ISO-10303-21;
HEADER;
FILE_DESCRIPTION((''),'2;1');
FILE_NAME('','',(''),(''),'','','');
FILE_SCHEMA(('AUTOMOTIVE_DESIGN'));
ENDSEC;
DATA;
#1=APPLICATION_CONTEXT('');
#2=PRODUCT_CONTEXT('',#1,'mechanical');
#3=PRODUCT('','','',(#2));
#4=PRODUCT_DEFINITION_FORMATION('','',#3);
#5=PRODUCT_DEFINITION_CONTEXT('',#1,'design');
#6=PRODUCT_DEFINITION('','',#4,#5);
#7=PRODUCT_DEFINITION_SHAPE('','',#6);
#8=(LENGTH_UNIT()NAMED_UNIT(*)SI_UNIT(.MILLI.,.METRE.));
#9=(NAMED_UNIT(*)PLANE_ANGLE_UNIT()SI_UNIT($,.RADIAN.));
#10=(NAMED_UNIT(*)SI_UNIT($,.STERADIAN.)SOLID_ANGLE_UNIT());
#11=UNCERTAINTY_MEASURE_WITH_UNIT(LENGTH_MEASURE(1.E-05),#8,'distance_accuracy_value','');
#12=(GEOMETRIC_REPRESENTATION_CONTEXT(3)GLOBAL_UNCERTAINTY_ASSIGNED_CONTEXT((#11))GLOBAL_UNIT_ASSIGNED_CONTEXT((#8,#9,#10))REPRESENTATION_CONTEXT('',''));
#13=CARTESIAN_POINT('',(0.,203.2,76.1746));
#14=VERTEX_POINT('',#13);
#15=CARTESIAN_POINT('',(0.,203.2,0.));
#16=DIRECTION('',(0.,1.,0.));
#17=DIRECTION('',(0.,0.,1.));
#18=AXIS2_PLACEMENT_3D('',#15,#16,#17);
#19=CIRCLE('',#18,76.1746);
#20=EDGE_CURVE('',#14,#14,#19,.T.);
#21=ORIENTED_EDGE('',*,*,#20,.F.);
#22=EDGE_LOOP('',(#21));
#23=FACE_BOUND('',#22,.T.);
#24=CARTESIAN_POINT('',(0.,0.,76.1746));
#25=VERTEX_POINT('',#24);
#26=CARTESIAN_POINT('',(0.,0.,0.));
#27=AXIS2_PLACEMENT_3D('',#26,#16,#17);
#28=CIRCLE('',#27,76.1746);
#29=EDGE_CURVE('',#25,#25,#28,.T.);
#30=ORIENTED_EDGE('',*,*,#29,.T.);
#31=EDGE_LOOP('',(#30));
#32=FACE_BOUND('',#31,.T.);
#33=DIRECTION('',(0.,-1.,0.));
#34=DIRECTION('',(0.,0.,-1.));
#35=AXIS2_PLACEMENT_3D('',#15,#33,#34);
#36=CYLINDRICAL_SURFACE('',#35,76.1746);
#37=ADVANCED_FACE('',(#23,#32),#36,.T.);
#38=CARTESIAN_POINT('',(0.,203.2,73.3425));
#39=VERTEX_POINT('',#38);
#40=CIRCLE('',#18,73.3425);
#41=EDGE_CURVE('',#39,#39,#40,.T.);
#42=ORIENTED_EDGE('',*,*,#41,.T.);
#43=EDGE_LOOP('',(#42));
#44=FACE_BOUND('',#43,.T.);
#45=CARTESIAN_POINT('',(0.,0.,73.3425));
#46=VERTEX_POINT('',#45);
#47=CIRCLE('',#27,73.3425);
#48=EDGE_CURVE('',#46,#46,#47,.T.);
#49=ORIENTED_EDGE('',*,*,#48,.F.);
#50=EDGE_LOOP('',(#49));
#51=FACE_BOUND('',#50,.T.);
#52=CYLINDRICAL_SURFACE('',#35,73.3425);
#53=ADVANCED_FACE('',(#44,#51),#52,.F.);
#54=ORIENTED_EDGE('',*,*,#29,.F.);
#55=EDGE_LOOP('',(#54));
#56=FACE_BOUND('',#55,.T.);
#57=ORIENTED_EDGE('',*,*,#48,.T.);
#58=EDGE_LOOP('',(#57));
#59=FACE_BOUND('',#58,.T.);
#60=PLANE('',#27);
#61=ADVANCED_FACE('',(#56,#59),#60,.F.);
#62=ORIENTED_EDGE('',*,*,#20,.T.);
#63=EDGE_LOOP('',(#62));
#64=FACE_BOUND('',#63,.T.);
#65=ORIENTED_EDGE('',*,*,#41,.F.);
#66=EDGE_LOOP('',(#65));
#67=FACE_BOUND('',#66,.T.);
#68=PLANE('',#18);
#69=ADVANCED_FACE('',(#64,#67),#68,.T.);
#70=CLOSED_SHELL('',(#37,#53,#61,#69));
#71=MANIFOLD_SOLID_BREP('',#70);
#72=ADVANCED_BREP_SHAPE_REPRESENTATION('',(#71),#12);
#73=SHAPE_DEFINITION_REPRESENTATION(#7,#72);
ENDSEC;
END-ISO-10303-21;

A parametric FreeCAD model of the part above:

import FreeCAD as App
import Part
import Sketcher
Q = App.Units.Quantity

doc = App.newDocument("Part")
body = doc.addObject("PartDesign::Body", "Body")

sketch1 = doc.addObject("Sketcher::SketchObject", "Sketch")
body.addObject(sketch1)
sketch1.AttachmentSupport = (doc.XZ_Plane, [""])
sketch1.MapMode = "FlatFace"
sketch1.addGeometry([
    Part.Circle(App.Vector(0, 0, 0), App.Vector(0, 0, 1), 76),
    Part.Circle(App.Vector(0, 0, 0), App.Vector(0, 0, 1), 73),
], False)
sketch1.addConstraint([
    Sketcher.Constraint("Coincident", 0, 3, -1, 1),
    Sketcher.Constraint("Coincident", 1, 3, -1, 1),
    Sketcher.Constraint("Diameter", 0, Q("5.998 in")),
    Sketcher.Constraint("Diameter", 1, Q("5.775 in")),
])
pad1 = doc.addObject("PartDesign::Pad", "Pad")
body.addObject(pad1)
pad1.Profile = sketch1
pad1.Length = Q("8 in")
pad1.Reversed = True

doc.recompute()
